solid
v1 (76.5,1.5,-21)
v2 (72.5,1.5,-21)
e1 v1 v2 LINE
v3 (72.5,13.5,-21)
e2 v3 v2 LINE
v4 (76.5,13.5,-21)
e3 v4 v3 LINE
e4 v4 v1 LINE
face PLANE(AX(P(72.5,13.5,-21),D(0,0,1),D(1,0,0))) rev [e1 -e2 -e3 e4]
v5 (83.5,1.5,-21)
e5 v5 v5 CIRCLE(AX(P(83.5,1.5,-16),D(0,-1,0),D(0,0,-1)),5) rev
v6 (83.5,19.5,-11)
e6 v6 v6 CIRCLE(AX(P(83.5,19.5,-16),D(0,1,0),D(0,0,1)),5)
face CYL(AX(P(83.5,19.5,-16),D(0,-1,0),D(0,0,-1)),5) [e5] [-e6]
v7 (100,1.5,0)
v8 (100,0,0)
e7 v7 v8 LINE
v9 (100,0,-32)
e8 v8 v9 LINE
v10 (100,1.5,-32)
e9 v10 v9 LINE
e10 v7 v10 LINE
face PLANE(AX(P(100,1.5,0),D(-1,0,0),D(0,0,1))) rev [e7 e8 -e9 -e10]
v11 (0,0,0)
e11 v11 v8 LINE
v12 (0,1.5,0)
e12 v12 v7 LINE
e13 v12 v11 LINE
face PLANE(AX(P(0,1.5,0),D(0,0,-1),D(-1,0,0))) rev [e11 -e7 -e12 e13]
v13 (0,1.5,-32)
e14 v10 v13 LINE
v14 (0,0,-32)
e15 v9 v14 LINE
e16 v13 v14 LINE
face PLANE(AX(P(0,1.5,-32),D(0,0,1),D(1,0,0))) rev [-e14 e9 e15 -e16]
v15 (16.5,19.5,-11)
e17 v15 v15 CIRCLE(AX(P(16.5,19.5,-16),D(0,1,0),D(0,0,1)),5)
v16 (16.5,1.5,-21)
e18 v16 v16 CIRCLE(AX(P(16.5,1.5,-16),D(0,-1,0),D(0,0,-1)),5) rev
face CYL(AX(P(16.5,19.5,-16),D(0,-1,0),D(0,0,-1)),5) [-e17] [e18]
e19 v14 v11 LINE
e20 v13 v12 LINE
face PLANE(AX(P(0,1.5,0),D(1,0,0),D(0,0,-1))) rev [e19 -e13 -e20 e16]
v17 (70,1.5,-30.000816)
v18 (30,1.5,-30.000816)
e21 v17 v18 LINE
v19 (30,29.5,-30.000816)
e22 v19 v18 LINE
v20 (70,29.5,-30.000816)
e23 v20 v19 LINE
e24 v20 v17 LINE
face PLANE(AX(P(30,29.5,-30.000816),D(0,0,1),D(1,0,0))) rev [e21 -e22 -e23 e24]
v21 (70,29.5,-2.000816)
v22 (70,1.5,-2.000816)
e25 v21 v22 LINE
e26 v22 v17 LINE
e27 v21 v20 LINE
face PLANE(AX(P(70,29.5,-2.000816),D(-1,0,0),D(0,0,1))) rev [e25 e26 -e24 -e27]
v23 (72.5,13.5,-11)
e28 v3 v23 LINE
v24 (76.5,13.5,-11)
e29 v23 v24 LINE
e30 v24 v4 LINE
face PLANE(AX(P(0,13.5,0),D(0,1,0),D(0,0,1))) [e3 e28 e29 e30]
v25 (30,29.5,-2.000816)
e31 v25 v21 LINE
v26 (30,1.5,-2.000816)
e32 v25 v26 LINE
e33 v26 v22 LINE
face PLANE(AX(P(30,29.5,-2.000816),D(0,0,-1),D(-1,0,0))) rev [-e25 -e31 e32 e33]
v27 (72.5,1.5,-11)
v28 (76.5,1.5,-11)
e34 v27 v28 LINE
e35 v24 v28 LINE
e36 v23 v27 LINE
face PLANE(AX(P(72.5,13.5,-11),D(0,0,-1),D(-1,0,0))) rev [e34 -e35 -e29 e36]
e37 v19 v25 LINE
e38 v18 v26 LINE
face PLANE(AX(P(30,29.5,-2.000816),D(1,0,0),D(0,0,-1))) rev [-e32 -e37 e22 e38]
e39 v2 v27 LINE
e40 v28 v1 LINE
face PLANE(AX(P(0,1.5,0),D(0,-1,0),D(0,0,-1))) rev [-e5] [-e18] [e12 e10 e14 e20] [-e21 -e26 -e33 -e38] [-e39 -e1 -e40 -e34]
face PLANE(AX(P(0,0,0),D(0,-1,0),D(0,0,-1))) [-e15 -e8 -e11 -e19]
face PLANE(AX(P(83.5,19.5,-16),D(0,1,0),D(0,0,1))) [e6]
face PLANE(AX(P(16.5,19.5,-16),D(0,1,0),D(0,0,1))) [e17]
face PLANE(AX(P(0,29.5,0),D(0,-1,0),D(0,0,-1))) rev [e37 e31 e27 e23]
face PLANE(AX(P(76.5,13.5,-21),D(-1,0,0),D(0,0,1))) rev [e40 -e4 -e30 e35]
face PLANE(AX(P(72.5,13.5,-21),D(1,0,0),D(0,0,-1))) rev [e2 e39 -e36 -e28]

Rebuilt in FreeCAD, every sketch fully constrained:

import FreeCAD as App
import Part
import Sketcher
Q = App.Units.Quantity

doc = App.newDocument("Part")
body = doc.addObject("PartDesign::Body", "Body")

sketch1 = body.newObject("Sketcher::SketchObject", "Sketch")
sketch1.AttachmentSupport = (doc.getObject("XZ_Plane"), [""])
sketch1.MapMode = "FlatFace"
sketch1.addGeometry([
    Part.LineSegment(App.Vector(0, -32, 0), App.Vector(0, 0, 0)),
    Part.LineSegment(App.Vector(0, 0, 0), App.Vector(100, 0, 0)),
    Part.LineSegment(App.Vector(100, 0, 0), App.Vector(100, -32, 0)),
    Part.LineSegment(App.Vector(100, -32, 0), App.Vector(0, -32, 0)),
], False)
sketch1.addConstraint([
    Sketcher.Constraint("Coincident", 0, 2, 1, 1),
    Sketcher.Constraint("Coincident", 1, 2, 2, 1),
    Sketcher.Constraint("Coincident", 2, 2, 3, 1),
    Sketcher.Constraint("Coincident", 3, 2, 0, 1),
    Sketcher.Constraint("Vertical", 0),
    Sketcher.Constraint("Horizontal", 1),
    Sketcher.Constraint("Vertical", 2),
    Sketcher.Constraint("Horizontal", 3),
    Sketcher.Constraint("Coincident", 0, 2, -1, 1),
    Sketcher.Constraint("DistanceX", 1, 1, 1, 2, Q("100 mm")),
    Sketcher.Constraint("DistanceY", 0, 1, 0, 2, Q("32 mm")),
])
pad1 = body.newObject("PartDesign::Pad", "Pad")
pad1.Profile = sketch1
pad1.Length = 1.5
pad1.Reversed = True

sketch2 = body.newObject("Sketcher::SketchObject", "Sketch001")
sketch2.AttachmentSupport = (doc.getObject("XZ_Plane"), [""])
sketch2.MapMode = "FlatFace"
sketch2.AttachmentOffset = App.Placement(App.Vector(0, 0, -1.5), App.Rotation())
sketch2.addGeometry([
    Part.LineSegment(App.Vector(30, -30, 0), App.Vector(30, -2, 0)),
    Part.LineSegment(App.Vector(30, -2, 0), App.Vector(70, -2, 0)),
    Part.LineSegment(App.Vector(70, -2, 0), App.Vector(70, -30, 0)),
    Part.LineSegment(App.Vector(70, -30, 0), App.Vector(30, -30, 0)),
], False)
sketch2.addConstraint([
    Sketcher.Constraint("Coincident", 0, 2, 1, 1),
    Sketcher.Constraint("Coincident", 1, 2, 2, 1),
    Sketcher.Constraint("Coincident", 2, 2, 3, 1),
    Sketcher.Constraint("Coincident", 3, 2, 0, 1),
    Sketcher.Constraint("Vertical", 0),
    Sketcher.Constraint("Horizontal", 1),
    Sketcher.Constraint("Vertical", 2),
    Sketcher.Constraint("Horizontal", 3),
    Sketcher.Constraint("DistanceX", 1, 1, 1, 2, Q("40 mm")),
    Sketcher.Constraint("DistanceY", 0, 1, 0, 2, Q("28 mm")),
    Sketcher.Constraint("DistanceX", -1, 1, 0, 2, Q("30 mm")),
    Sketcher.Constraint("DistanceY", 0, 2, -1, 1, Q("2.000816 mm")),
])
pad2 = body.newObject("PartDesign::Pad", "Pad001")
pad2.Profile = sketch2
pad2.Length = 28
pad2.Reversed = True

sketch3 = body.newObject("Sketcher::SketchObject", "Sketch002")
sketch3.AttachmentSupport = (doc.getObject("XZ_Plane"), [""])
sketch3.MapMode = "FlatFace"
sketch3.AttachmentOffset = App.Placement(App.Vector(0, 0, -1.5), App.Rotation())
sketch3.addGeometry([
    Part.Circle(App.Vector(16, -16, 0), App.Vector(0, 0, 1), 5),
    Part.Circle(App.Vector(84, -16, 0), App.Vector(0, 0, 1), 5),
], False)
sketch3.addConstraint([
    Sketcher.Constraint("Equal", 0, 1),
    Sketcher.Constraint("Horizontal", 0, 3, 1, 3),
    Sketcher.Constraint("Diameter", 0, Q("10 mm")),
    Sketcher.Constraint("DistanceY", 0, 3, -1, 1, Q("16 mm")),
    Sketcher.Constraint("DistanceX", 0, 3, 1, 3, Q("67 mm")),
    Sketcher.Constraint("DistanceX", -1, 1, 0, 3, Q("16.5 mm")),
])
pad3 = body.newObject("PartDesign::Pad", "Pad002")
pad3.Profile = sketch3
pad3.Length = 18
pad3.Reversed = True

sketch4 = body.newObject("Sketcher::SketchObject", "Sketch003")
sketch4.AttachmentSupport = (doc.getObject("XZ_Plane"), [""])
sketch4.MapMode = "FlatFace"
sketch4.AttachmentOffset = App.Placement(App.Vector(0, 0, -1.5), App.Rotation())
sketch4.addGeometry([
    Part.LineSegment(App.Vector(72.5, -21, 0), App.Vector(72.5, -11, 0)),
    Part.LineSegment(App.Vector(72.5, -11, 0), App.Vector(76.5, -11, 0)),
    Part.LineSegment(App.Vector(76.5, -11, 0), App.Vector(76.5, -21, 0)),
    Part.LineSegment(App.Vector(76.5, -21, 0), App.Vector(72.5, -21, 0)),
], False)
sketch4.addConstraint([
    Sketcher.Constraint("Coincident", 0, 2, 1, 1),
    Sketcher.Constraint("Coincident", 1, 2, 2, 1),
    Sketcher.Constraint("Coincident", 2, 2, 3, 1),
    Sketcher.Constraint("Coincident", 3, 2, 0, 1),
    Sketcher.Constraint("Vertical", 0),
    Sketcher.Constraint("Horizontal", 1),
    Sketcher.Constraint("Vertical", 2),
    Sketcher.Constraint("Horizontal", 3),
    Sketcher.Constraint("DistanceX", 1, 1, 1, 2, Q("4 mm")),
    Sketcher.Constraint("DistanceY", 0, 1, 0, 2, Q("10 mm")),
    Sketcher.Constraint("DistanceY", 0, 2, -1, 1, Q("11 mm")),
    Sketcher.Constraint("DistanceX", -1, 1, 0, 2, Q("72.5 mm")),
])
pad4 = body.newObject("PartDesign::Pad", "Pad003")
pad4.Profile = sketch4
pad4.Length = 12
pad4.Reversed = True

doc.recompute()
